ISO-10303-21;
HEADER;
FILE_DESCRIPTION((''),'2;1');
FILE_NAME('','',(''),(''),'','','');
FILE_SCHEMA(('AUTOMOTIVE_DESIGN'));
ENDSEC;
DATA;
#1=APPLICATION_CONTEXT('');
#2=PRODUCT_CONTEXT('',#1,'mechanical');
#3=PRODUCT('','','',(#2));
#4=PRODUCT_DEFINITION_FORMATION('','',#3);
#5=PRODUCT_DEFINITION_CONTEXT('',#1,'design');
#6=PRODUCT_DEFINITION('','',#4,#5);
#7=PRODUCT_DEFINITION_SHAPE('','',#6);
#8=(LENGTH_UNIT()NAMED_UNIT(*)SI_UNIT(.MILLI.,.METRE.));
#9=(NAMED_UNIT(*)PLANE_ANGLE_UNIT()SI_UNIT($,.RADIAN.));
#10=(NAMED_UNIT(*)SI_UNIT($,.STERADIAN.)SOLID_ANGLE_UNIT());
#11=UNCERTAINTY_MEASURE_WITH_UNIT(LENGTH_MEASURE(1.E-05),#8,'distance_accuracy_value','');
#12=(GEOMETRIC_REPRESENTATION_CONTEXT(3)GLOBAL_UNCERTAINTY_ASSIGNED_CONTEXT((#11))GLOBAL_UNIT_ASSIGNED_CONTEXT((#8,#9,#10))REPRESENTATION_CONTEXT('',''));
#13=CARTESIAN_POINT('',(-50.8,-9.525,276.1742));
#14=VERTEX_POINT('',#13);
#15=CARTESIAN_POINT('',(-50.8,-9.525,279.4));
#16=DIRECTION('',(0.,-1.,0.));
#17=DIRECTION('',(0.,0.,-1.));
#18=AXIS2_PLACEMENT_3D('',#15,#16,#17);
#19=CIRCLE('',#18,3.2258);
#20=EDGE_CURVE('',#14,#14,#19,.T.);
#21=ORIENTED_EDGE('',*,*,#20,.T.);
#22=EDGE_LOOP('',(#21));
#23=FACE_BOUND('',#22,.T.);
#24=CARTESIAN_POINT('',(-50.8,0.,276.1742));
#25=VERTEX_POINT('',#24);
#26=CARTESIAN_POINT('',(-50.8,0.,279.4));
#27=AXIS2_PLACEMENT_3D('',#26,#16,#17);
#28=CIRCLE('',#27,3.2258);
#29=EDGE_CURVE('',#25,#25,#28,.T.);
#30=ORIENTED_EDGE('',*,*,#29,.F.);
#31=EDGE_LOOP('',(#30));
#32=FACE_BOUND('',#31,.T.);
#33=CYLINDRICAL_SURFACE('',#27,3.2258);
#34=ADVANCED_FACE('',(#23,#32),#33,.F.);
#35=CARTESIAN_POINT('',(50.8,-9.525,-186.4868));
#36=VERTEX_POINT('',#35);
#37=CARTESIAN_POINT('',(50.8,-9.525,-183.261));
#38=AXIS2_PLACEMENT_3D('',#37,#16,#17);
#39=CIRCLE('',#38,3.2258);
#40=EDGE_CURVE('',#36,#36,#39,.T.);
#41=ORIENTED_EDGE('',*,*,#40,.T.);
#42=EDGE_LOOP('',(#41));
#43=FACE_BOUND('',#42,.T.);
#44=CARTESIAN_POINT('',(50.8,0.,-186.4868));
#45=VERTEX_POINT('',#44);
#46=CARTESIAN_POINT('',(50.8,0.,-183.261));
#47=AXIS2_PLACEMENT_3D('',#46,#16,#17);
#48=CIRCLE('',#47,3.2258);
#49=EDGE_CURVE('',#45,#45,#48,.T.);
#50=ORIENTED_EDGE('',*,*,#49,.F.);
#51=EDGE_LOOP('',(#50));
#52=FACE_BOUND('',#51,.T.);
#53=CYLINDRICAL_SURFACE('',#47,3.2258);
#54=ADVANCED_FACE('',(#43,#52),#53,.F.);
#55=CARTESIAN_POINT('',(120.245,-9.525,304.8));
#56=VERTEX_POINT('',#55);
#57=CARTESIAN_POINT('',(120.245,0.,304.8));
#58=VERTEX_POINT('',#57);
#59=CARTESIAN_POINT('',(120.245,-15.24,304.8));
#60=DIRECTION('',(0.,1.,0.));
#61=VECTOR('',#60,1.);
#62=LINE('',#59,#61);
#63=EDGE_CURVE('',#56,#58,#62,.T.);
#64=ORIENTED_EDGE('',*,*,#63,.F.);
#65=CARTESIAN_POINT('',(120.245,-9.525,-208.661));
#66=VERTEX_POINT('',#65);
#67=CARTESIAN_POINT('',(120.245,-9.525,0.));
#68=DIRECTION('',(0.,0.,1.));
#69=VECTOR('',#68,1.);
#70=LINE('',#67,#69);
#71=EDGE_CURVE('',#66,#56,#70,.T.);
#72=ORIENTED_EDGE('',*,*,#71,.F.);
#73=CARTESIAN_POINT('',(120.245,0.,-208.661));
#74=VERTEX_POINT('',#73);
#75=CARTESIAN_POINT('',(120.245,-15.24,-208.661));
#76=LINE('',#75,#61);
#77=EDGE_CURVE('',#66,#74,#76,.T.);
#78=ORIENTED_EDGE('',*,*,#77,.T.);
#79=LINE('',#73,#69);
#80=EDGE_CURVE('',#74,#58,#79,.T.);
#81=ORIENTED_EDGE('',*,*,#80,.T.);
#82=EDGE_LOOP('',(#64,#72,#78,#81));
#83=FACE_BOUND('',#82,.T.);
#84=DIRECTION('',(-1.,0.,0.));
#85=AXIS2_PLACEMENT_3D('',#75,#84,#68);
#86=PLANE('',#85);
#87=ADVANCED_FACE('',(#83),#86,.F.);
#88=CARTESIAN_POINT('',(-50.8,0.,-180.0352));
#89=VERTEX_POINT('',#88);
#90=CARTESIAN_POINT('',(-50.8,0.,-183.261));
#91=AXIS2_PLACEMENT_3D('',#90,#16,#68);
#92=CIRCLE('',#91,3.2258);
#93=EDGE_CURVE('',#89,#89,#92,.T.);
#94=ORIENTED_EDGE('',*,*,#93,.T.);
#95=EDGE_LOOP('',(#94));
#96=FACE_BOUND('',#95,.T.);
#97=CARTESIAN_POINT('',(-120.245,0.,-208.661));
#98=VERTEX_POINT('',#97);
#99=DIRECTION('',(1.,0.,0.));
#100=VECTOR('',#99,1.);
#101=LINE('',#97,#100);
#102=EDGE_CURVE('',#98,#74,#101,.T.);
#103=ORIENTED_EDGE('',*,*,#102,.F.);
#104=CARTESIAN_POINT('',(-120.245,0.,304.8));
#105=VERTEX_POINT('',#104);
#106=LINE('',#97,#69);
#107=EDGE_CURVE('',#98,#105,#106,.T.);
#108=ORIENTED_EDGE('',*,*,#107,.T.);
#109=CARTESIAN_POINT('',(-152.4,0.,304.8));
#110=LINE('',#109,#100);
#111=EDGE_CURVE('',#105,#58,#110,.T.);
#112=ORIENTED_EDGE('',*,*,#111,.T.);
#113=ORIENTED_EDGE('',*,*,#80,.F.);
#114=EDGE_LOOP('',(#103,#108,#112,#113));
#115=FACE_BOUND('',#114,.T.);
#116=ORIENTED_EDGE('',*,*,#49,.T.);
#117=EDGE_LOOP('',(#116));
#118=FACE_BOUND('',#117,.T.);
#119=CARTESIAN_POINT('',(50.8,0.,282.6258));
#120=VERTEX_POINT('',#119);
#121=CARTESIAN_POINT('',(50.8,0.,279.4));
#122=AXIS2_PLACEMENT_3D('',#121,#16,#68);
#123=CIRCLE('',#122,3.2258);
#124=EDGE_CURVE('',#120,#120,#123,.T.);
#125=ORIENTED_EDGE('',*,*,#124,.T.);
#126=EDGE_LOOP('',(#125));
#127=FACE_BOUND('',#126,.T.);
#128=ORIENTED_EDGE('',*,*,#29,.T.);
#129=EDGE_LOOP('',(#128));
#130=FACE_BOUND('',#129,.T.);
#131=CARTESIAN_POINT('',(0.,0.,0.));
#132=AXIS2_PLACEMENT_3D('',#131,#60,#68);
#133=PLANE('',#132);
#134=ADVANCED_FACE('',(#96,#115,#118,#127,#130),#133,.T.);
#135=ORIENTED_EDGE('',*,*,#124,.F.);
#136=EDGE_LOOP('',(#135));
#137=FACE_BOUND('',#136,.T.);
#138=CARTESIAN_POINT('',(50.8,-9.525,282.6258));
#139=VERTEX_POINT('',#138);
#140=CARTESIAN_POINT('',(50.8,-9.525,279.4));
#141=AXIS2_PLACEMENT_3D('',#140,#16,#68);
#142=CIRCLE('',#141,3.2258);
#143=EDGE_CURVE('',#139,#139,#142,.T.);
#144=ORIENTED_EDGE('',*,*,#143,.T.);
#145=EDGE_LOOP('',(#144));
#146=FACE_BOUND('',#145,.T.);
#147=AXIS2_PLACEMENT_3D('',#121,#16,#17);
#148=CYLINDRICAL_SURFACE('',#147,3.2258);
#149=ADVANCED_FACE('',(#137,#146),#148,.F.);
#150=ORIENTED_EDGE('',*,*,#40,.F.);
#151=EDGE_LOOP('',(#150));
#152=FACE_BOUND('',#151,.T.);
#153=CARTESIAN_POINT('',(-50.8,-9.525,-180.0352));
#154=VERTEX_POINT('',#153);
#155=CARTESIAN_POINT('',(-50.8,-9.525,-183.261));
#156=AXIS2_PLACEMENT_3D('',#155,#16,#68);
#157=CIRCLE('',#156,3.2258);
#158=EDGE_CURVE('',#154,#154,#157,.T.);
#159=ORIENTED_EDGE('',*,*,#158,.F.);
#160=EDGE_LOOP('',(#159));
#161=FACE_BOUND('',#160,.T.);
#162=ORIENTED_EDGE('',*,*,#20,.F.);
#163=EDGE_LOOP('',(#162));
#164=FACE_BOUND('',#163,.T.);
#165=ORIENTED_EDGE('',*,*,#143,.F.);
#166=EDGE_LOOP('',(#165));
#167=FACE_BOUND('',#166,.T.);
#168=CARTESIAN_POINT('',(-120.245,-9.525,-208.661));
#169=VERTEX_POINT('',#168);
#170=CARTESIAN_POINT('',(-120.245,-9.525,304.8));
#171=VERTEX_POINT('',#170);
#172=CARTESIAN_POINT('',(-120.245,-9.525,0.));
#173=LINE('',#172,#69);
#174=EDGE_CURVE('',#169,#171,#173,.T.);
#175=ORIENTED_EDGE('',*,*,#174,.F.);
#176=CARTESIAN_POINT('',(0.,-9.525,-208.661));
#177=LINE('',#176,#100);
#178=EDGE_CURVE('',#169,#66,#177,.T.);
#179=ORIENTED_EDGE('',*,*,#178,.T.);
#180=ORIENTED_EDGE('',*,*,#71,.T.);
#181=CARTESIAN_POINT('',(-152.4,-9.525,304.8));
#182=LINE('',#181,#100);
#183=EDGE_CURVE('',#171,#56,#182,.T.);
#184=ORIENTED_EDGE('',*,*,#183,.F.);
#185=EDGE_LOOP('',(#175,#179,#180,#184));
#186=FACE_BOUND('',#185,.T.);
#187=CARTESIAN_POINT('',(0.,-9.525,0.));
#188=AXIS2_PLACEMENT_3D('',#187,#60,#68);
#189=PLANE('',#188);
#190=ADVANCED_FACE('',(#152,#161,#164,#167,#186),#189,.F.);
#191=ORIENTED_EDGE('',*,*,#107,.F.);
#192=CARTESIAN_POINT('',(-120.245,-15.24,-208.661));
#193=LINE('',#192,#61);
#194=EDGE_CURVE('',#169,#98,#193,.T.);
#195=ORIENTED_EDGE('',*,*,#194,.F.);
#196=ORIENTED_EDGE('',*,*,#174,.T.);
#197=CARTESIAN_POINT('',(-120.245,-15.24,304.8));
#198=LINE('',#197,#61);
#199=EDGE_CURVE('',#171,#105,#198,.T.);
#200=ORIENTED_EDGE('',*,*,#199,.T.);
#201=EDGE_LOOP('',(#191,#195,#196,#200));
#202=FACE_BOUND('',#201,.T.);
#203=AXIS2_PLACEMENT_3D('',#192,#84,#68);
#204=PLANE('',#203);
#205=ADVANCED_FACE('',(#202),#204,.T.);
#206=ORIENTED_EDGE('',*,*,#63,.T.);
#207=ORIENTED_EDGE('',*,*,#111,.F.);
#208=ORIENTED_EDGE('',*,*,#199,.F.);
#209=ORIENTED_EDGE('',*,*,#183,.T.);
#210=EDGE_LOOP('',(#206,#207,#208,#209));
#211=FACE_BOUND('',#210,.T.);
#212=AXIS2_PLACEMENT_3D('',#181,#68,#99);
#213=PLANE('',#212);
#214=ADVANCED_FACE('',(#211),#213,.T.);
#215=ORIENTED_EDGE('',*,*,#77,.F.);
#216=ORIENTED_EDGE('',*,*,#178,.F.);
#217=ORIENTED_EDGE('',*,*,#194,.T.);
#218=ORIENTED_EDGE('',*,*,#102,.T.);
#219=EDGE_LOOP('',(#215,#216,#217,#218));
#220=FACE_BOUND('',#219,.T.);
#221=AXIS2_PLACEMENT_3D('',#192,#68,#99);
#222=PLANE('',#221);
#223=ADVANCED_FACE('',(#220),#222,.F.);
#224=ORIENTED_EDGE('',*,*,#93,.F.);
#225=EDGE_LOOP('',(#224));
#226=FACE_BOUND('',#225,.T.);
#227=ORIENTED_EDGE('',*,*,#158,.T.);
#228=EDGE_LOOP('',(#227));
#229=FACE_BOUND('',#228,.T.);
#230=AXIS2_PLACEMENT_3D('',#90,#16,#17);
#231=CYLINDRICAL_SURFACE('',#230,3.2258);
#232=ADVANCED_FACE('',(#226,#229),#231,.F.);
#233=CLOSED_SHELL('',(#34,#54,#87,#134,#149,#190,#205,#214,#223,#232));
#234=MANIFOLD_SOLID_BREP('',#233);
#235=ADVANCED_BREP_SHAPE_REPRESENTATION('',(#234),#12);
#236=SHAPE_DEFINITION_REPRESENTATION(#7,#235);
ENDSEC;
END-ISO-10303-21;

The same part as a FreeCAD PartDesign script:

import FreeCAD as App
import Part
import Sketcher

V = App.Vector
Q = App.Units.Quantity


def add_polygon(sketch, points):
    """Adds a closed chain of lines whose ends are joined by coincident constraints."""
    first, n = sketch.GeometryCount, len(points)
    for a, b in zip(points, points[1:] + points[:1]):
        sketch.addGeometry(Part.LineSegment(App.Vector(*a, 0), App.Vector(*b, 0)), False)
    for i in range(n):
        sketch.addConstraint(Sketcher.Constraint("Coincident", first + i, 2, first + (i + 1) % n, 1))

doc = App.newDocument("Part")
body = doc.addObject("PartDesign::Body", "Body")

sketch1 = body.newObject("Sketcher::SketchObject", "Sketch")
sketch1.AttachmentSupport = (doc.getObject("XZ_Plane"), [""])
sketch1.MapMode = "FlatFace"
add_polygon(sketch1, [(-152.4, -304.8), (-152.4, 304.8), (152.4, 304.8), (152.4, -304.8)])
sketch1.addConstraint([
    Sketcher.Constraint("Vertical", 0),
    Sketcher.Constraint("Horizontal", 1),
    Sketcher.Constraint("Vertical", 2),
    Sketcher.Constraint("Horizontal", 3),
    Sketcher.Constraint("Symmetric", 0, 2, 2, 2, -1, 1),
    Sketcher.Constraint("DistanceX", 1, 1, 1, 2, Q("12 in")),
    Sketcher.Constraint("DistanceY", 0, 1, 0, 2, Q("24 in")),
])
pad1 = body.newObject("PartDesign::Pad", "Pad")
pad1.Profile = sketch1
pad1.Length = Q("0.375 in")

sketch2 = body.newObject("Sketcher::SketchObject", "Sketch001")
sketch2.AttachmentSupport = (doc.getObject("XZ_Plane"), [""])
sketch2.MapMode = "FlatFace"
add_polygon(sketch2, [(152.4, -304.8), (-152.4, -304.8), (-152.4, 304.8), (-120.245, 304.8), (-120.245, -208.661), (120.245, -208.661), (120.245, 304.8), (152.4, 304.8)])
sketch2.addConstraint([
    Sketcher.Constraint("Horizontal", 0),
    Sketcher.Constraint("Vertical", 1),
    Sketcher.Constraint("Horizontal", 2),
    Sketcher.Constraint("Vertical", 3),
    Sketcher.Constraint("Horizontal", 4),
    Sketcher.Constraint("Vertical", 5),
    Sketcher.Constraint("Horizontal", 6),
    Sketcher.Constraint("Vertical", 7),
    Sketcher.Constraint("Symmetric", 0, 2, 6, 2, -1, 1),
    Sketcher.Constraint("Symmetric", 2, 2, 5, 2, -2),
    Sketcher.Constraint("DistanceX", 0, 2, 0, 1, Q("12 in")),
    Sketcher.Constraint("DistanceY", 1, 1, 1, 2, Q("24 in")),
    Sketcher.Constraint("DistanceY", 3, 2, 3, 1, Q("20.215 in")),
    Sketcher.Constraint("DistanceX", 2, 1, 2, 2, Q("32.155 mm")),
])
pocket1 = body.newObject("PartDesign::Pocket", "Pocket")
pocket1.Profile = sketch2
pocket1.Length = Q("0.6 in")
pocket1.Reversed = True

sketch3 = body.newObject("Sketcher::SketchObject", "Sketch002")
sketch3.AttachmentSupport = (doc.getObject("XZ_Plane"), [""])
sketch3.MapMode = "FlatFace"
sketch3.AttachmentOffset = App.Placement(V(0, 0, 0.375 * 25.4), App.Rotation())
sketch3.addGeometry([
    Part.Circle(V(50.8, -183.261, 0), V(0, 0, 1), 3.2258),
    Part.Circle(V(-50.8, -183.261, 0), V(0, 0, 1), 3.2258),
    Part.Circle(V(-50.8, 279.4, 0), V(0, 0, 1), 3.2258),
    Part.Circle(V(50.8, 279.4, 0), V(0, 0, 1), 3.2258),
], False)
sketch3.addConstraint([
    Sketcher.Constraint("Equal", 0, 1),
    Sketcher.Constraint("Equal", 1, 2),
    Sketcher.Constraint("Equal", 2, 3),
    Sketcher.Constraint("Symmetric", 0, 3, 1, 3, -2),
    Sketcher.Constraint("Symmetric", 2, 3, 3, 3, -2),
    Sketcher.Constraint("Vertical", 1, 3, 2, 3),
    Sketcher.Constraint("Diameter", 0, Q("0.254 in")),
    Sketcher.Constraint("DistanceX", -1, 1, 0, 3, Q("2 in")),
    Sketcher.Constraint("DistanceY", -1, 1, 2, 3, Q("11 in")),
    Sketcher.Constraint("DistanceY", 0, 3, -1, 1, Q("7.215 in")),
])
pocket2 = body.newObject("PartDesign::Pocket", "Pocket001")
pocket2.Profile = sketch3
pocket2.Type = "ThroughAll"

doc.recompute()
